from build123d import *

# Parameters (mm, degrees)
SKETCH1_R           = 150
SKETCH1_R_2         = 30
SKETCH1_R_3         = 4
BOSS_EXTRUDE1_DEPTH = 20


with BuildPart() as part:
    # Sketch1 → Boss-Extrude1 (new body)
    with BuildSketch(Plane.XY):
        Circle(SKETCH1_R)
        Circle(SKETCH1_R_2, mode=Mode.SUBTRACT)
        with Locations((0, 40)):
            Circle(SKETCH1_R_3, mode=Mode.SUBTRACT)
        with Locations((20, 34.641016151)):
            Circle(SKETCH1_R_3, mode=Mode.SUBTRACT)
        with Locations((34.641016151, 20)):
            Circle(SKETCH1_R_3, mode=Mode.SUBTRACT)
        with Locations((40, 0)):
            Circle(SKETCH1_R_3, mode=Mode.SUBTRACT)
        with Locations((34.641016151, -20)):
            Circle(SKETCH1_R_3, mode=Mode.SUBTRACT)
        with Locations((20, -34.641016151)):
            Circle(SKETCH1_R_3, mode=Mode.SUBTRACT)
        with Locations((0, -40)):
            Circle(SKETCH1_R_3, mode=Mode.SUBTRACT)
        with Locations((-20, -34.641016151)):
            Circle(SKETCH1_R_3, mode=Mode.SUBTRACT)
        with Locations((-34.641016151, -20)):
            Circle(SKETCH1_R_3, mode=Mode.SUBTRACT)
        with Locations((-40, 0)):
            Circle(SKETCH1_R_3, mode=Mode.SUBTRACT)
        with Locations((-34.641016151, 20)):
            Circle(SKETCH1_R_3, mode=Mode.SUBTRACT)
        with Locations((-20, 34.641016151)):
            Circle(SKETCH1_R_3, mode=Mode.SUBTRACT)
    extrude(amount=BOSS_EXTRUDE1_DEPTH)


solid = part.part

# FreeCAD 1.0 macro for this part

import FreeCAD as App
import Part
import Sketcher

V = App.Vector
Q = App.Units.Quantity

doc = App.newDocument("Part")
body = doc.addObject("PartDesign::Body", "Body")

# Sketch on XY plane
sketch1 = body.newObject("Sketcher::SketchObject", "Sketch")
sketch1.AttachmentSupport = (doc.getObject("XY_Plane"), [""])
sketch1.MapMode = "FlatFace"
sketch1.addGeometry(Part.Circle(V(0, 0, 0), V(0, 0, 1), 150), False)
sketch1.addGeometry(Part.Circle(V(-20, -34.641016, 0), V(0, 0, 1), 4), False)
sketch1.addGeometry(Part.Circle(V(-34.641016, -20, 0), V(0, 0, 1), 4), False)
sketch1.addGeometry(Part.Circle(V(0, -40, 0), V(0, 0, 1), 4), False)
sketch1.addGeometry(Part.Circle(V(20, -34.641016, 0), V(0, 0, 1), 4), False)
sketch1.addGeometry(Part.Circle(V(34.641016, -20, 0), V(0, 0, 1), 4), False)
sketch1.addGeometry(Part.Circle(V(-40, 0, 0), V(0, 0, 1), 4), False)
sketch1.addGeometry(Part.Circle(V(-34.641016, 20, 0), V(0, 0, 1), 4), False)
sketch1.addGeometry(Part.Circle(V(-20, 34.641016, 0), V(0, 0, 1), 4), False)
sketch1.addGeometry(Part.Circle(V(0, 0, 0), V(0, 0, 1), 30), False)
sketch1.addGeometry(Part.Circle(V(40, 0, 0), V(0, 0, 1), 4), False)
sketch1.addGeometry(Part.Circle(V(34.641016, 20, 0), V(0, 0, 1), 4), False)
sketch1.addGeometry(Part.Circle(V(0, 40, 0), V(0, 0, 1), 4), False)
sketch1.addGeometry(Part.Circle(V(20, 34.641016, 0), V(0, 0, 1), 4), False)
sketch1.addConstraint(Sketcher.Constraint("Coincident", 0, 3, -1, 1))
sketch1.addConstraint(Sketcher.Constraint("Coincident", 9, 3, -1, 1))
sketch1.addConstraint(Sketcher.Constraint("Equal", 1, 2))
sketch1.addConstraint(Sketcher.Constraint("Equal", 2, 3))
sketch1.addConstraint(Sketcher.Constraint("Equal", 3, 4))
sketch1.addConstraint(Sketcher.Constraint("Equal", 4, 5))
sketch1.addConstraint(Sketcher.Constraint("Equal", 5, 6))
sketch1.addConstraint(Sketcher.Constraint("Equal", 6, 7))
sketch1.addConstraint(Sketcher.Constraint("Equal", 7, 8))
sketch1.addConstraint(Sketcher.Constraint("Equal", 8, 10))
sketch1.addConstraint(Sketcher.Constraint("Equal", 10, 11))
sketch1.addConstraint(Sketcher.Constraint("Equal", 11, 12))
sketch1.addConstraint(Sketcher.Constraint("Equal", 12, 13))
sketch1.addConstraint(Sketcher.Constraint("Symmetric", 5, 3, 7, 3, -1, 1))
sketch1.addConstraint(Sketcher.Constraint("Symmetric", 4, 3, 8, 3, -1, 1))
sketch1.addConstraint(Sketcher.Constraint("Symmetric", 6, 3, 10, 3, -1, 1))
sketch1.addConstraint(Sketcher.Constraint("Symmetric", 2, 3, 11, 3, -1, 1))
sketch1.addConstraint(Sketcher.Constraint("Symmetric", 3, 3, 12, 3, -1, 1))
sketch1.addConstraint(Sketcher.Constraint("Symmetric", 1, 3, 13, 3, -1, 1))
sketch1.addConstraint(Sketcher.Constraint("Symmetric", 1, 3, 4, 3, -2))
sketch1.addConstraint(Sketcher.Constraint("Symmetric", 2, 3, 5, 3, -2))
sketch1.addConstraint(Sketcher.Constraint("PointOnObject", 3, 3, -2))
sketch1.addConstraint(Sketcher.Constraint("PointOnObject", 6, 3, -1))
sketch1.addConstraint(Sketcher.Constraint("Diameter", 0, Q("300 mm")))
sketch1.addConstraint(Sketcher.Constraint("Diameter", 1, Q("8 mm")))
sketch1.addConstraint(Sketcher.Constraint("Diameter", 9, Q("60 mm")))
sketch1.addConstraint(Sketcher.Constraint("DistanceX", 1, 3, -1, 1, Q("20 mm")))
sketch1.addConstraint(Sketcher.Constraint("DistanceY", 2, 3, -1, 1, Q("20 mm")))
sketch1.addConstraint(Sketcher.Constraint("DistanceY", 3, 3, -1, 1, Q("40 mm")))
sketch1.addConstraint(Sketcher.Constraint("DistanceX", 6, 3, -1, 1, Q("40 mm")))
sketch1.addConstraint(Sketcher.Constraint("DistanceY", 1, 3, -1, 1, Q("34.641016 mm")))
sketch1.addConstraint(Sketcher.Constraint("DistanceX", 2, 3, -1, 1, Q("34.641016 mm")))
pad1 = body.newObject("PartDesign::Pad", "Pad")
pad1.Profile = sketch1
pad1.Length = 20

doc.recompute()
